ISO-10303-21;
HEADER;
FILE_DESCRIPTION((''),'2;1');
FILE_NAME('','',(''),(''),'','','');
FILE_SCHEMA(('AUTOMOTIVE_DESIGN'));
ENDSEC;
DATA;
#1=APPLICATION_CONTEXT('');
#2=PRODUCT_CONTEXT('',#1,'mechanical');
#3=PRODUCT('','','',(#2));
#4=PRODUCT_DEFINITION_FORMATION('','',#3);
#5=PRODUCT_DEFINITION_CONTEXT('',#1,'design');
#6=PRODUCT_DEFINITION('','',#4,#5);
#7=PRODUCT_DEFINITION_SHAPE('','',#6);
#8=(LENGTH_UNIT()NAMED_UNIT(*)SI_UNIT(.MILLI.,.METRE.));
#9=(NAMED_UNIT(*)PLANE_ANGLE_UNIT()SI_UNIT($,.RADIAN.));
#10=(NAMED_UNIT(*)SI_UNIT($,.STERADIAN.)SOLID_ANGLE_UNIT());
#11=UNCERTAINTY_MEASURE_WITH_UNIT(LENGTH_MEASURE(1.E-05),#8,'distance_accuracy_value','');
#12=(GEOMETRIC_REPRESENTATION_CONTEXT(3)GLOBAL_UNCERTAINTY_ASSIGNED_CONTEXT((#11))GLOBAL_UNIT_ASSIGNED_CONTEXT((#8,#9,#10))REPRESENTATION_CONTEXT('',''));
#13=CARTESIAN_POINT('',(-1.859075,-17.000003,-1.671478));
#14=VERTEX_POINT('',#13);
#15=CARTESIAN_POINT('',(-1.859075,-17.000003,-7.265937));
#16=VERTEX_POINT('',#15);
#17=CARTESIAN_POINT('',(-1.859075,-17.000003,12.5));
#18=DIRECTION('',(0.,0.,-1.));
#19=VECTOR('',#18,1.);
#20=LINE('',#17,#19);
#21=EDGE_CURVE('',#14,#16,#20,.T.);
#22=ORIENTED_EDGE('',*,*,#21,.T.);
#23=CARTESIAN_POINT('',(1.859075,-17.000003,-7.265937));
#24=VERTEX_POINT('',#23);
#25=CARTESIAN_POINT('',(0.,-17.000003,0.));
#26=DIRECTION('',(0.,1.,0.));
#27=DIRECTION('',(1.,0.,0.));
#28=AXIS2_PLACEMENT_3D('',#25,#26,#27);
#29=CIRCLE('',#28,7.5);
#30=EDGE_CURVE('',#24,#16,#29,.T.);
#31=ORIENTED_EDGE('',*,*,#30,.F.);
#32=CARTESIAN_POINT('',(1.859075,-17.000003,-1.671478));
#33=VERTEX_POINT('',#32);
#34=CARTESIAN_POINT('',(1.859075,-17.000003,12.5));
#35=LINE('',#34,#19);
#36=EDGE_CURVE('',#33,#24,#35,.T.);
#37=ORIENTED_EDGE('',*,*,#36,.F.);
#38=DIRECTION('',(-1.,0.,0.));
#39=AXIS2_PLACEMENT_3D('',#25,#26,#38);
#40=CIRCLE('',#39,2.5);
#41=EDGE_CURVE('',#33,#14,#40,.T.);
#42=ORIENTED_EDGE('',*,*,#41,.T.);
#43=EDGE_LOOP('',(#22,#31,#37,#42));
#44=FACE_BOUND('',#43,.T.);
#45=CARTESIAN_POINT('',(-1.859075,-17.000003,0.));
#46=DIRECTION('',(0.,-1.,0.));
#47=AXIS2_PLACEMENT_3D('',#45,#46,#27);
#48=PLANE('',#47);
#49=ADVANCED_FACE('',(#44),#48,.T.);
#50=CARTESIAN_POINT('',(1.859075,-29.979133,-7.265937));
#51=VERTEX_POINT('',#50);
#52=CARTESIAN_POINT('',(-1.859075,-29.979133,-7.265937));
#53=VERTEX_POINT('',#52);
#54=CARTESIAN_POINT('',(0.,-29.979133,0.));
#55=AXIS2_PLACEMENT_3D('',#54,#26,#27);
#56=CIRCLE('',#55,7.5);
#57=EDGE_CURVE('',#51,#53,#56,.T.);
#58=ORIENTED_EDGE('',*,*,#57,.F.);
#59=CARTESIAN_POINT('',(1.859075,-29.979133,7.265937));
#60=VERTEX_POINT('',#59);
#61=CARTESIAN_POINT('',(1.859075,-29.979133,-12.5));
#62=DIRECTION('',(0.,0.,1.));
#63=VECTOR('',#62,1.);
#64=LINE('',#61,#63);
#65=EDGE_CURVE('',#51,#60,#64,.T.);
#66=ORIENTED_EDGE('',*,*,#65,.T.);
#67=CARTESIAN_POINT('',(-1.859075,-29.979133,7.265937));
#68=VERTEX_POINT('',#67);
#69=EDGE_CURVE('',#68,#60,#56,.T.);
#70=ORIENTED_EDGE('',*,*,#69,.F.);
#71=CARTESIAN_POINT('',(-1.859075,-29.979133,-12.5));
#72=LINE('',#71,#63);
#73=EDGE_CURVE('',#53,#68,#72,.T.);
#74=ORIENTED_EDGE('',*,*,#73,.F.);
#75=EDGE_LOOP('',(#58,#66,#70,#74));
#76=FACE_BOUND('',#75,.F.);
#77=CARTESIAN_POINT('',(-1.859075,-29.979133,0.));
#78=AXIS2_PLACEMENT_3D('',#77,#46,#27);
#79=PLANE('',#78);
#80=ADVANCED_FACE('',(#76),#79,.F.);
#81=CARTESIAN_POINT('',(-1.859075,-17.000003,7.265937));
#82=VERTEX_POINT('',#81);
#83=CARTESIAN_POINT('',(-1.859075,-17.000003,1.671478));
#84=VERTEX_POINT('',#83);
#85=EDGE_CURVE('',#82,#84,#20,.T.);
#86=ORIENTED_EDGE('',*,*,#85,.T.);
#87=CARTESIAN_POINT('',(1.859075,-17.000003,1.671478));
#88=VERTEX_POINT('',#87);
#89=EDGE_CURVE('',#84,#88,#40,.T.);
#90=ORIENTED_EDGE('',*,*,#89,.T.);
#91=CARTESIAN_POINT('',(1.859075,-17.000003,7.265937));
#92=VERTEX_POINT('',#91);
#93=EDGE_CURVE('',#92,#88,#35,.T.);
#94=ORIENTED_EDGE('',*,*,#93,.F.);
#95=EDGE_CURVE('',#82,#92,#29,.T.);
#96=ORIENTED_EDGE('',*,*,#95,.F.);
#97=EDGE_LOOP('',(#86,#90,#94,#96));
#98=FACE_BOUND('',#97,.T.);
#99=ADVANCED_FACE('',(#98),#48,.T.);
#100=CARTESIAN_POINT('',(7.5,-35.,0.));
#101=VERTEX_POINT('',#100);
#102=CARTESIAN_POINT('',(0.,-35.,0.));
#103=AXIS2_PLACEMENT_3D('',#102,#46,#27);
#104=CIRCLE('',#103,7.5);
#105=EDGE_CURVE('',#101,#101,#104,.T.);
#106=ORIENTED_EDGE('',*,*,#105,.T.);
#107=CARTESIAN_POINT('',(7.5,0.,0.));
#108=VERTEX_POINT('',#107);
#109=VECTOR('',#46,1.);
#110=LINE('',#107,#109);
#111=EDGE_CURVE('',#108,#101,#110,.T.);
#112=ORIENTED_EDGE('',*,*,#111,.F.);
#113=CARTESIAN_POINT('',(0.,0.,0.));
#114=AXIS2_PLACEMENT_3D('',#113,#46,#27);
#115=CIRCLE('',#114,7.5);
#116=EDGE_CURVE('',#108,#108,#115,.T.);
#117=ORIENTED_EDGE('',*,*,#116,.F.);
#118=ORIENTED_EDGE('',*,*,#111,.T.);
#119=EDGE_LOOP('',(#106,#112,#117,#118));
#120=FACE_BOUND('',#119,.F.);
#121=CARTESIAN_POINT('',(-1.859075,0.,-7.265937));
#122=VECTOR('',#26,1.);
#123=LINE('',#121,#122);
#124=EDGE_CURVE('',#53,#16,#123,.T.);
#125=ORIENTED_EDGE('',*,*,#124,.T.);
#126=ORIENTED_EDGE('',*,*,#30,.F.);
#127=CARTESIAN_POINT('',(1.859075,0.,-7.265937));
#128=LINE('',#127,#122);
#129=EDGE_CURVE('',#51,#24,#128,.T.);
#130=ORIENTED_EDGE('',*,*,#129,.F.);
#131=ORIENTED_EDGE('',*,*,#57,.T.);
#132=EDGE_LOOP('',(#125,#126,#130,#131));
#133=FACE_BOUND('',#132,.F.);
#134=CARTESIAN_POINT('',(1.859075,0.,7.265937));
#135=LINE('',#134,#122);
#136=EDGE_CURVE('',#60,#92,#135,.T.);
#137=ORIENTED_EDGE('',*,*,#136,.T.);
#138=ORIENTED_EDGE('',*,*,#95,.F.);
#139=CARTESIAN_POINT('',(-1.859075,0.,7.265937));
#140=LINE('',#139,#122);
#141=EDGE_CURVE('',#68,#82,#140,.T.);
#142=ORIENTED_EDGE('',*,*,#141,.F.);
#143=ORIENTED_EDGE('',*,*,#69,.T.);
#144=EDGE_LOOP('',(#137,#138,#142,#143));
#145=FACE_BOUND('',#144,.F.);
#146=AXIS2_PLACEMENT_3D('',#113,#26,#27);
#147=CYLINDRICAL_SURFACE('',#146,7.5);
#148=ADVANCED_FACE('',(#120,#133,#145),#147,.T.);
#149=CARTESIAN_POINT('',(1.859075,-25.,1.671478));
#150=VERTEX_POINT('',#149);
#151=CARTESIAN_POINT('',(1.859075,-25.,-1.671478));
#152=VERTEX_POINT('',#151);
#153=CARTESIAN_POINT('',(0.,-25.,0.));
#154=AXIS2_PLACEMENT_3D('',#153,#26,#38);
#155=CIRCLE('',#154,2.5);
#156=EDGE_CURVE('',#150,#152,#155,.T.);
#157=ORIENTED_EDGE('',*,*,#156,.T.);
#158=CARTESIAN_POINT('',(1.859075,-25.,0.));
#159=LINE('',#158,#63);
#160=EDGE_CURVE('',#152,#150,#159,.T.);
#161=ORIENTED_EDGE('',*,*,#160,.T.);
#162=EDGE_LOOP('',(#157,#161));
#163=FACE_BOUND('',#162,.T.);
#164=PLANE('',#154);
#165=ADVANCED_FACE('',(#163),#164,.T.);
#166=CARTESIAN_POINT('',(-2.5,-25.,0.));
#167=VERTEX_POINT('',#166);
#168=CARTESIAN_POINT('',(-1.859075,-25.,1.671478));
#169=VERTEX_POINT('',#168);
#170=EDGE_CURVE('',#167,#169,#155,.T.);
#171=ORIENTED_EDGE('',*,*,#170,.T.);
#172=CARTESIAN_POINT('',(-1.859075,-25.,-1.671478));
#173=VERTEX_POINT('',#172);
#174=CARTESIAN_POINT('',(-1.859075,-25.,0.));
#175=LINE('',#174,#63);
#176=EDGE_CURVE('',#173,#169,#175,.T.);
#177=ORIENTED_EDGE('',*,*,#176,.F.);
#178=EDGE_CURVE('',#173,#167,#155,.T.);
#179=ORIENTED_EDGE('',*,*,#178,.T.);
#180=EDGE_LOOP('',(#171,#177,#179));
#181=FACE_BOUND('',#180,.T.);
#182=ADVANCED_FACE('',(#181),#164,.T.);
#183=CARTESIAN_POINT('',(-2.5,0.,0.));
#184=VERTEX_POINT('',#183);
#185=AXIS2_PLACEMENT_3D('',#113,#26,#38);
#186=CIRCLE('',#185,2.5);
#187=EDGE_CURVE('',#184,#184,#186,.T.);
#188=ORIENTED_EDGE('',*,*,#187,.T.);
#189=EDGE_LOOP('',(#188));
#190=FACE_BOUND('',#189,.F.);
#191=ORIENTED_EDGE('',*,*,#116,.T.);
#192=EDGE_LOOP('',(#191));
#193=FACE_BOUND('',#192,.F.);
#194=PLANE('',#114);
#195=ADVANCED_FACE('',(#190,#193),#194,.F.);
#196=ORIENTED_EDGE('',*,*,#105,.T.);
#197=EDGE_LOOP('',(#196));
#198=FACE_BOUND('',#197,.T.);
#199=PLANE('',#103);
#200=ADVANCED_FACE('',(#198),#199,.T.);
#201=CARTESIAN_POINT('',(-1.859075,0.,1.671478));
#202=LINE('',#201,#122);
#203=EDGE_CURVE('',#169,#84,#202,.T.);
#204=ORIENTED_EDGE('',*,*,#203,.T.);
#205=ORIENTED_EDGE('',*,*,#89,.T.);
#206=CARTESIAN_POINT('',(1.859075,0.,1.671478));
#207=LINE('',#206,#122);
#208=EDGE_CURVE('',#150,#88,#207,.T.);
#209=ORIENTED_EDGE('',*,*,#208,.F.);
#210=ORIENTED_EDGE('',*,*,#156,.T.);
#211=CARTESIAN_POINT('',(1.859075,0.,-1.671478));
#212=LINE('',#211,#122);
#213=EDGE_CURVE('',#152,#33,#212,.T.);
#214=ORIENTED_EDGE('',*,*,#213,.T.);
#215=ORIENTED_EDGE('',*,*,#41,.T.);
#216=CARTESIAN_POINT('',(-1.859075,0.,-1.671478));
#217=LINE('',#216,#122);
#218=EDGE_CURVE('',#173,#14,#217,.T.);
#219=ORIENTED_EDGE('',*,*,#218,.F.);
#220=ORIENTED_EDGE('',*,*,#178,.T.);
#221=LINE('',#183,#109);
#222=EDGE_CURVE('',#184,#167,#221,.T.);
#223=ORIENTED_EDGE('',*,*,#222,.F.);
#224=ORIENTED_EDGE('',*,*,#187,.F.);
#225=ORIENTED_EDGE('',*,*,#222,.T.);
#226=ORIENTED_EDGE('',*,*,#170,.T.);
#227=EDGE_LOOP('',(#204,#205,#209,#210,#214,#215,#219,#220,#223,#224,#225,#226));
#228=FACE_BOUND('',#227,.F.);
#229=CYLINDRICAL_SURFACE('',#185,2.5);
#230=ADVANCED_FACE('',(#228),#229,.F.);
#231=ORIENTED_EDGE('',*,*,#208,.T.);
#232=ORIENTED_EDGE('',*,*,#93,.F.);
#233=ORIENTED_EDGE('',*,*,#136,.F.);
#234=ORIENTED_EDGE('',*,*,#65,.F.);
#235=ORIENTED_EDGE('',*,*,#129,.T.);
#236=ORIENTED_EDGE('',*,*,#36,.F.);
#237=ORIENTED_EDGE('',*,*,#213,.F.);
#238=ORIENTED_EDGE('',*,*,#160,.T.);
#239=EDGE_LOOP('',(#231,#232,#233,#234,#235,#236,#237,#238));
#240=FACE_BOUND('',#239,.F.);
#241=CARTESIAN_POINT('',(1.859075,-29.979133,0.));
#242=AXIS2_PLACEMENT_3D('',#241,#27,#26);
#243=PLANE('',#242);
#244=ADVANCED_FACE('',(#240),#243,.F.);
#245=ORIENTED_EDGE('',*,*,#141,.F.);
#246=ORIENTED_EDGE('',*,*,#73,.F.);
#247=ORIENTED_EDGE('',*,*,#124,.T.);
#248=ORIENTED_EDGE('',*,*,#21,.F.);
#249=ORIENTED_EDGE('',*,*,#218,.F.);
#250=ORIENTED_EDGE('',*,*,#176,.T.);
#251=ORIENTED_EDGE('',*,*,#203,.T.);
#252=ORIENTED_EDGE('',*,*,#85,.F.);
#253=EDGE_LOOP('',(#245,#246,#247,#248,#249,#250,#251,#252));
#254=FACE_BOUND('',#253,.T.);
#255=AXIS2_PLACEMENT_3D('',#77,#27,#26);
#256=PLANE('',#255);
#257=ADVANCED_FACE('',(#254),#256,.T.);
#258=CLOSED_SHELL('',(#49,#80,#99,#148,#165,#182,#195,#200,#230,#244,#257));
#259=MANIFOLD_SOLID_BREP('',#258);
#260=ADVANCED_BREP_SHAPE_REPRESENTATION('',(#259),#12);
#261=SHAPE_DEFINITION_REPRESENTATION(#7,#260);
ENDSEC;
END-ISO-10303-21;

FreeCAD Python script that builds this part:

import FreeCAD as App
import Part
import Sketcher
from FreeCAD import Vector


def add_polygon(sketch, points):
    """Adds a closed chain of lines whose ends are joined by coincident constraints."""
    first, n = sketch.GeometryCount, len(points)
    for a, b in zip(points, points[1:] + points[:1]):
        sketch.addGeometry(Part.LineSegment(App.Vector(*a, 0), App.Vector(*b, 0)), False)
    for i in range(n):
        sketch.addConstraint(Sketcher.Constraint("Coincident", first + i, 2, first + (i + 1) % n, 1))

doc = App.newDocument("Part")
body = doc.addObject("PartDesign::Body", "Body")

# Sketch on XZ plane
sketch1 = doc.addObject("Sketcher::SketchObject", "Sketch")
body.addObject(sketch1)
sketch1.AttachmentSupport = (doc.XZ_Plane, [""])
sketch1.MapMode = "FlatFace"
sketch1.addGeometry(Part.Circle(Vector(0, 0, 0), Vector(0, 0, 1), 7.5), False)
sketch1.addConstraint(Sketcher.Constraint("Coincident", 0, 3, -1, 1))
sketch1.addConstraint(Sketcher.Constraint("Diameter", 0, 15.0))
pad1 = doc.addObject("PartDesign::Pad", "Pad")
body.addObject(pad1)
pad1.Profile = sketch1
pad1.Length = 35

# Sketch on XY plane
sketch2 = doc.addObject("Sketcher::SketchObject", "Sketch001")
body.addObject(sketch2)
sketch2.AttachmentSupport = (doc.XY_Plane, [""])
sketch2.MapMode = "FlatFace"
add_polygon(sketch2, [(-1.859075, -17.000003), (-1.859075, -29.979133), (1.859075, -29.979133), (1.859075, -17.000003)])  # lines 0-3
sketch2.addConstraint(Sketcher.Constraint("Vertical", 0))
sketch2.addConstraint(Sketcher.Constraint("Horizontal", 1))
sketch2.addConstraint(Sketcher.Constraint("Vertical", 2))
sketch2.addConstraint(Sketcher.Constraint("Horizontal", 3))
sketch2.addConstraint(Sketcher.Constraint("DistanceX", 1, 1, 1, 2, 3.71815))
sketch2.addConstraint(Sketcher.Constraint("DistanceY", 0, 2, 0, 1, 12.979131))
sketch2.addConstraint(Sketcher.Constraint("DistanceX", 0, 2, -1, 1, 1.859075))
sketch2.addConstraint(Sketcher.Constraint("DistanceY", 0, 2, -1, 1, 29.979133))
pocket1 = doc.addObject("PartDesign::Pocket", "Pocket")
body.addObject(pocket1)
pocket1.Profile = sketch2
pocket1.Length = 25
pocket1.Midplane = True

# Sketch on XZ plane
sketch3 = doc.addObject("Sketcher::SketchObject", "Sketch002")
body.addObject(sketch3)
sketch3.AttachmentSupport = (doc.XZ_Plane, [""])
sketch3.MapMode = "FlatFace"
sketch3.addGeometry(Part.Circle(Vector(0, 0, 0), Vector(0, 0, 1), 2.5), False)
sketch3.addConstraint(Sketcher.Constraint("Coincident", 0, 3, -1, 1))
sketch3.addConstraint(Sketcher.Constraint("Diameter", 0, 5.0))
pocket2 = doc.addObject("PartDesign::Pocket", "Pocket001")
body.addObject(pocket2)
pocket2.Profile = sketch3
pocket2.Length = 25
pocket2.Reversed = True

doc.recompute()
